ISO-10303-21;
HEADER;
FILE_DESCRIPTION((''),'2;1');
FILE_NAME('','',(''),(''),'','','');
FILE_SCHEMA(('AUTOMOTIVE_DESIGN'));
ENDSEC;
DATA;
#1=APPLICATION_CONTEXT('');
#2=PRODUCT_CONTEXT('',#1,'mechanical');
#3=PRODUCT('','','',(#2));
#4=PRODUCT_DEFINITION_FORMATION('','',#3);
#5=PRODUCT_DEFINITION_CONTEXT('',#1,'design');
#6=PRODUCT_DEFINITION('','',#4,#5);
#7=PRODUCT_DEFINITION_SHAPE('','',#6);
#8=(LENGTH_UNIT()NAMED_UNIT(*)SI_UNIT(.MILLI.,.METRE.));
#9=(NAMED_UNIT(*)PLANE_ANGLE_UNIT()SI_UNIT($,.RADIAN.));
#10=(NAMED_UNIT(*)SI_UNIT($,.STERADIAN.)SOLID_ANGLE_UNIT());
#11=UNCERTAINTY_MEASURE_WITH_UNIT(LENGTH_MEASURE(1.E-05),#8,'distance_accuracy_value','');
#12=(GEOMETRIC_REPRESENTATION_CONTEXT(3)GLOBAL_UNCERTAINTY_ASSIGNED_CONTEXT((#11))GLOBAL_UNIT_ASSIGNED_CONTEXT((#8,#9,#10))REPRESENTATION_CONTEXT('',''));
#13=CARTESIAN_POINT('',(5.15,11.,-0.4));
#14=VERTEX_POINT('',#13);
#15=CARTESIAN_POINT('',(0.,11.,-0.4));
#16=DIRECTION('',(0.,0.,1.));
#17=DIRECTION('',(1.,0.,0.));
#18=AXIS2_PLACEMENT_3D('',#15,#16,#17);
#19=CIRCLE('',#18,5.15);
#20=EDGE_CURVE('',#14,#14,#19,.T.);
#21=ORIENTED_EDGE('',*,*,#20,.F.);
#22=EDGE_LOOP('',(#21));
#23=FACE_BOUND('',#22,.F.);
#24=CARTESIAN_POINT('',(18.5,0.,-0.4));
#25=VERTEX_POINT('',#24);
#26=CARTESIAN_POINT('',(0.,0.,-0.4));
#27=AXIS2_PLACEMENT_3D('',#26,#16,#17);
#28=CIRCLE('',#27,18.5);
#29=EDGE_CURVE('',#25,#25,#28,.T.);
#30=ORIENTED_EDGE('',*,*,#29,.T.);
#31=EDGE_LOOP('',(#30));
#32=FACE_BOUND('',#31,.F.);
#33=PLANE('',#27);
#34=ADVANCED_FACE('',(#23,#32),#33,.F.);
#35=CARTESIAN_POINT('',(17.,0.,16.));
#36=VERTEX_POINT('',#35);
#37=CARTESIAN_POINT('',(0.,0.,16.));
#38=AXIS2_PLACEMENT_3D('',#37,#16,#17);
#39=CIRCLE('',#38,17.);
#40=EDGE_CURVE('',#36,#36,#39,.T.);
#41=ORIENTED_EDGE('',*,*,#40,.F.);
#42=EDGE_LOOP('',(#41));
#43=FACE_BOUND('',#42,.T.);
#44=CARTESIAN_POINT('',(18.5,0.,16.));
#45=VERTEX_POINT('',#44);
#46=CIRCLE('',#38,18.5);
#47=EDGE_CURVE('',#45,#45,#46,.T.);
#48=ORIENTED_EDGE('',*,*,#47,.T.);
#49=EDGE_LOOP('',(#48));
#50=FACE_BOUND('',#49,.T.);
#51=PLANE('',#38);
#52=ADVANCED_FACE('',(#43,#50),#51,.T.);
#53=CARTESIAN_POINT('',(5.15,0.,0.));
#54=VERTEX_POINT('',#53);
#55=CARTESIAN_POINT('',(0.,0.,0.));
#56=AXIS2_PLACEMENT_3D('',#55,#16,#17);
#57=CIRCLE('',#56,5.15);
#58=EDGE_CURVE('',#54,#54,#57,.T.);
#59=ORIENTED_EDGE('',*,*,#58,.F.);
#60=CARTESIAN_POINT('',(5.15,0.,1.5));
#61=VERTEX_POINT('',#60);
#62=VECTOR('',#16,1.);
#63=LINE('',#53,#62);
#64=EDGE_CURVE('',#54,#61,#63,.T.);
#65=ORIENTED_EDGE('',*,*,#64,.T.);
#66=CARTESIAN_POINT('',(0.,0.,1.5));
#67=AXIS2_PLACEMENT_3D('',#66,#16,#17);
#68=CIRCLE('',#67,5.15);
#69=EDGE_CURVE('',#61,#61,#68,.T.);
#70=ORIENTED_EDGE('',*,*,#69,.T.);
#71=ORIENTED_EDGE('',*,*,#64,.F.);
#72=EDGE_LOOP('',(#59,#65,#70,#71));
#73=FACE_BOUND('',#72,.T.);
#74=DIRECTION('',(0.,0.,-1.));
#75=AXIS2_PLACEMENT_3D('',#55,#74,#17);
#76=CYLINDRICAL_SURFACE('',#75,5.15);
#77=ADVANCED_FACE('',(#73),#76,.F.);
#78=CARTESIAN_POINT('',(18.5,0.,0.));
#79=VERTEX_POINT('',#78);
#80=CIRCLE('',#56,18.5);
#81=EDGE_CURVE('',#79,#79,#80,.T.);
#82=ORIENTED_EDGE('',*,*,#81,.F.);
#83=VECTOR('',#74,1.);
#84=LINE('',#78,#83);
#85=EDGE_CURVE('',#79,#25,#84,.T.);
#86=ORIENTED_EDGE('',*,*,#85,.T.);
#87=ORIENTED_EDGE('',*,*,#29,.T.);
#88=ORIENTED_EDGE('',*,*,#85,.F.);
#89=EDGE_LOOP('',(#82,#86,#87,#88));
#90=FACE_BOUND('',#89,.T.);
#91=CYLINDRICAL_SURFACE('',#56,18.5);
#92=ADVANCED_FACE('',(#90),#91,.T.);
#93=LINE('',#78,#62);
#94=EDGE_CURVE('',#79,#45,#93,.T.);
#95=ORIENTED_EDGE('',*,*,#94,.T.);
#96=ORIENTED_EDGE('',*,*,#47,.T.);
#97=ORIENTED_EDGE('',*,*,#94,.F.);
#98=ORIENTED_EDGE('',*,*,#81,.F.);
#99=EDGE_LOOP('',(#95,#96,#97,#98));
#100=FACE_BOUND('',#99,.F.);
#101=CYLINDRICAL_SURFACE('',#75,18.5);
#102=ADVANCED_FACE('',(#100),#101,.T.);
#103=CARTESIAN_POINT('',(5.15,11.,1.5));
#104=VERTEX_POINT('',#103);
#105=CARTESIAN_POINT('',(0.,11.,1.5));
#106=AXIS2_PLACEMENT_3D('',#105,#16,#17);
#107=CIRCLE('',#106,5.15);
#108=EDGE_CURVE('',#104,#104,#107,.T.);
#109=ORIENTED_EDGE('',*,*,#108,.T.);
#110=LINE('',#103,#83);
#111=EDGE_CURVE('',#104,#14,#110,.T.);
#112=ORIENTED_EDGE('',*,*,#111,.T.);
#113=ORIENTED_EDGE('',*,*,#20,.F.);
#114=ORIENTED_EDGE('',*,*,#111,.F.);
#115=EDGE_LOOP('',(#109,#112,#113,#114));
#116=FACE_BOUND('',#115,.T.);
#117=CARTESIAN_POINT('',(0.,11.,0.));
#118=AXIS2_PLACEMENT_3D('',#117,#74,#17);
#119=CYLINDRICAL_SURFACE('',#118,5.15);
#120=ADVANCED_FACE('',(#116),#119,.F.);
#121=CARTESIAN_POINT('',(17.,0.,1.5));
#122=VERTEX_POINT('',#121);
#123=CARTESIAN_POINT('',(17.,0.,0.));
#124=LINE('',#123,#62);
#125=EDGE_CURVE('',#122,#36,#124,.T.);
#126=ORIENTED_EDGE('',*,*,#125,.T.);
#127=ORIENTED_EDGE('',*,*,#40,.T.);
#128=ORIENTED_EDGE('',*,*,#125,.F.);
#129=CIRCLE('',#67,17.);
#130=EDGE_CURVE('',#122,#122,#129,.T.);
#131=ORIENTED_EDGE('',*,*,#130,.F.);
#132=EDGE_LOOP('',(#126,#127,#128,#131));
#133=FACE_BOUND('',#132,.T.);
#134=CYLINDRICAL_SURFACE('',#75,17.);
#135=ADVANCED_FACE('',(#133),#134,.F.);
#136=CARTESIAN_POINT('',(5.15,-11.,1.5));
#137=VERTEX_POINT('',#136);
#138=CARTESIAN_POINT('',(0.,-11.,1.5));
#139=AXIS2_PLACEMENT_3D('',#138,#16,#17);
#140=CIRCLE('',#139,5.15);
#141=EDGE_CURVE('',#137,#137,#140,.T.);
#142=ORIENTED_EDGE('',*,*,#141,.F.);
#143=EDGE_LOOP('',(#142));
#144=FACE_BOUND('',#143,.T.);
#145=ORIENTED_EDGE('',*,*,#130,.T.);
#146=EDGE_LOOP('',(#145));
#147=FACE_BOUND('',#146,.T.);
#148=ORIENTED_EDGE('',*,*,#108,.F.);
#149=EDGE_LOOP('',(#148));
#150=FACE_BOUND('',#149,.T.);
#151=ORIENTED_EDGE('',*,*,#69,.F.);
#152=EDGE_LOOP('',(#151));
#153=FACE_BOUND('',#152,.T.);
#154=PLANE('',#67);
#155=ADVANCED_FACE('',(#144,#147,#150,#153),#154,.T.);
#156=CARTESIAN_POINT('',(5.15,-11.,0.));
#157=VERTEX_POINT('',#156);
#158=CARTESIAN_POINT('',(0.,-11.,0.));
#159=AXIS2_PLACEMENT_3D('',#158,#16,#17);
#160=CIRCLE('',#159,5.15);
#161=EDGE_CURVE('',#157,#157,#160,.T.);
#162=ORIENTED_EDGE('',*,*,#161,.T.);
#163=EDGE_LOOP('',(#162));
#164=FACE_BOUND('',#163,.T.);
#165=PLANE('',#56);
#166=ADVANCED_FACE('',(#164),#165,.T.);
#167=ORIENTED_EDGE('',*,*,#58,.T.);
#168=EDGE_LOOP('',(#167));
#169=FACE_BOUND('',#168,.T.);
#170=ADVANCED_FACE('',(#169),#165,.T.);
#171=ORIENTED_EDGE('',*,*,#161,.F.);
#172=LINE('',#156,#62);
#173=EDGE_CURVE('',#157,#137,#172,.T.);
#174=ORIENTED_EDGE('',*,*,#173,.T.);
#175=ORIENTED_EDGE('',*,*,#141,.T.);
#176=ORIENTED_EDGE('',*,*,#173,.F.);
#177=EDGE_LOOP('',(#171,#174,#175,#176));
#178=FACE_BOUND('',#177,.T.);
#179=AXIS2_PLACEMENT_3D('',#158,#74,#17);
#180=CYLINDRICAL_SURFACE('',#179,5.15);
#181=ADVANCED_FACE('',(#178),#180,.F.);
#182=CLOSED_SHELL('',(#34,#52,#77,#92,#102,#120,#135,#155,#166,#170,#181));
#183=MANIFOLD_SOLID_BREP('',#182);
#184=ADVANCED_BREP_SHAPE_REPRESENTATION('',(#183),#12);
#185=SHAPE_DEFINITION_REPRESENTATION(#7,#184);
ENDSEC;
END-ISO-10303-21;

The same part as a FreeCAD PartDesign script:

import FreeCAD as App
import Part
import Sketcher

doc = App.newDocument("Part")
body = doc.addObject("PartDesign::Body", "Body")

sketch1 = body.newObject("Sketcher::SketchObject", "Sketch")
sketch1.AttachmentSupport = (doc.getObject("XY_Plane"), [""])
sketch1.MapMode = "FlatFace"
sketch1.addGeometry([
    Part.Circle(App.Vector(0, 0, 0), App.Vector(0, 0, 1), 18),
    Part.Circle(App.Vector(0, 11, 0), App.Vector(0, 0, 1), 5),
], False)
sketch1.addConstraint([
    Sketcher.Constraint("Coincident", 0, 3, -1, 1),
    Sketcher.Constraint("PointOnObject", 1, 3, -2),
    Sketcher.Constraint("Diameter", 0, 37.0),
    Sketcher.Constraint("Diameter", 1, 10.3),
    Sketcher.Constraint("DistanceY", -1, 1, 1, 3, 11.0),
])
pad1 = body.newObject("PartDesign::Pad", "Pad")
pad1.Profile = sketch1
pad1.Length = 0.4
pad1.Reversed = True

sketch2 = body.newObject("Sketcher::SketchObject", "Sketch001")
sketch2.AttachmentSupport = (doc.getObject("XY_Plane"), [""])
sketch2.MapMode = "FlatFace"
sketch2.addGeometry([
    Part.Circle(App.Vector(0, 0, 0), App.Vector(0, 0, 1), 17),
    Part.Circle(App.Vector(0, -11, 0), App.Vector(0, 0, 1), 5),
    Part.Circle(App.Vector(0, 0, 0), App.Vector(0, 0, 1), 5),
    Part.Circle(App.Vector(0, 11, 0), App.Vector(0, 0, 1), 5),
], False)
sketch2.addConstraint([
    Sketcher.Constraint("Coincident", 0, 3, -1, 1),
    Sketcher.Constraint("Coincident", 2, 3, -1, 1),
    Sketcher.Constraint("Equal", 1, 2),
    Sketcher.Constraint("Equal", 2, 3),
    Sketcher.Constraint("Symmetric", 1, 3, 3, 3, -1, 1),
    Sketcher.Constraint("PointOnObject", 1, 3, -2),
    Sketcher.Constraint("Diameter", 0, 34.0),
    Sketcher.Constraint("Diameter", 1, 10.3),
    Sketcher.Constraint("DistanceY", 1, 3, -1, 1, 11.0),
])
pad2 = body.newObject("PartDesign::Pad", "Pad001")
pad2.Profile = sketch2
pad2.Length = 1.5

sketch3 = body.newObject("Sketcher::SketchObject", "Sketch002")
sketch3.AttachmentSupport = (doc.getObject("XY_Plane"), [""])
sketch3.MapMode = "FlatFace"
sketch3.addGeometry([
    Part.Circle(App.Vector(0, 0, 0), App.Vector(0, 0, 1), 18),
    Part.Circle(App.Vector(0, 0, 0), App.Vector(0, 0, 1), 17),
], False)
sketch3.addConstraint([
    Sketcher.Constraint("Coincident", 0, 3, -1, 1),
    Sketcher.Constraint("Coincident", 1, 3, -1, 1),
    Sketcher.Constraint("Diameter", 0, 37.0),
    Sketcher.Constraint("Diameter", 1, 34.0),
])
pad3 = body.newObject("PartDesign::Pad", "Pad002")
pad3.Profile = sketch3
pad3.Length = 16

doc.recompute()
